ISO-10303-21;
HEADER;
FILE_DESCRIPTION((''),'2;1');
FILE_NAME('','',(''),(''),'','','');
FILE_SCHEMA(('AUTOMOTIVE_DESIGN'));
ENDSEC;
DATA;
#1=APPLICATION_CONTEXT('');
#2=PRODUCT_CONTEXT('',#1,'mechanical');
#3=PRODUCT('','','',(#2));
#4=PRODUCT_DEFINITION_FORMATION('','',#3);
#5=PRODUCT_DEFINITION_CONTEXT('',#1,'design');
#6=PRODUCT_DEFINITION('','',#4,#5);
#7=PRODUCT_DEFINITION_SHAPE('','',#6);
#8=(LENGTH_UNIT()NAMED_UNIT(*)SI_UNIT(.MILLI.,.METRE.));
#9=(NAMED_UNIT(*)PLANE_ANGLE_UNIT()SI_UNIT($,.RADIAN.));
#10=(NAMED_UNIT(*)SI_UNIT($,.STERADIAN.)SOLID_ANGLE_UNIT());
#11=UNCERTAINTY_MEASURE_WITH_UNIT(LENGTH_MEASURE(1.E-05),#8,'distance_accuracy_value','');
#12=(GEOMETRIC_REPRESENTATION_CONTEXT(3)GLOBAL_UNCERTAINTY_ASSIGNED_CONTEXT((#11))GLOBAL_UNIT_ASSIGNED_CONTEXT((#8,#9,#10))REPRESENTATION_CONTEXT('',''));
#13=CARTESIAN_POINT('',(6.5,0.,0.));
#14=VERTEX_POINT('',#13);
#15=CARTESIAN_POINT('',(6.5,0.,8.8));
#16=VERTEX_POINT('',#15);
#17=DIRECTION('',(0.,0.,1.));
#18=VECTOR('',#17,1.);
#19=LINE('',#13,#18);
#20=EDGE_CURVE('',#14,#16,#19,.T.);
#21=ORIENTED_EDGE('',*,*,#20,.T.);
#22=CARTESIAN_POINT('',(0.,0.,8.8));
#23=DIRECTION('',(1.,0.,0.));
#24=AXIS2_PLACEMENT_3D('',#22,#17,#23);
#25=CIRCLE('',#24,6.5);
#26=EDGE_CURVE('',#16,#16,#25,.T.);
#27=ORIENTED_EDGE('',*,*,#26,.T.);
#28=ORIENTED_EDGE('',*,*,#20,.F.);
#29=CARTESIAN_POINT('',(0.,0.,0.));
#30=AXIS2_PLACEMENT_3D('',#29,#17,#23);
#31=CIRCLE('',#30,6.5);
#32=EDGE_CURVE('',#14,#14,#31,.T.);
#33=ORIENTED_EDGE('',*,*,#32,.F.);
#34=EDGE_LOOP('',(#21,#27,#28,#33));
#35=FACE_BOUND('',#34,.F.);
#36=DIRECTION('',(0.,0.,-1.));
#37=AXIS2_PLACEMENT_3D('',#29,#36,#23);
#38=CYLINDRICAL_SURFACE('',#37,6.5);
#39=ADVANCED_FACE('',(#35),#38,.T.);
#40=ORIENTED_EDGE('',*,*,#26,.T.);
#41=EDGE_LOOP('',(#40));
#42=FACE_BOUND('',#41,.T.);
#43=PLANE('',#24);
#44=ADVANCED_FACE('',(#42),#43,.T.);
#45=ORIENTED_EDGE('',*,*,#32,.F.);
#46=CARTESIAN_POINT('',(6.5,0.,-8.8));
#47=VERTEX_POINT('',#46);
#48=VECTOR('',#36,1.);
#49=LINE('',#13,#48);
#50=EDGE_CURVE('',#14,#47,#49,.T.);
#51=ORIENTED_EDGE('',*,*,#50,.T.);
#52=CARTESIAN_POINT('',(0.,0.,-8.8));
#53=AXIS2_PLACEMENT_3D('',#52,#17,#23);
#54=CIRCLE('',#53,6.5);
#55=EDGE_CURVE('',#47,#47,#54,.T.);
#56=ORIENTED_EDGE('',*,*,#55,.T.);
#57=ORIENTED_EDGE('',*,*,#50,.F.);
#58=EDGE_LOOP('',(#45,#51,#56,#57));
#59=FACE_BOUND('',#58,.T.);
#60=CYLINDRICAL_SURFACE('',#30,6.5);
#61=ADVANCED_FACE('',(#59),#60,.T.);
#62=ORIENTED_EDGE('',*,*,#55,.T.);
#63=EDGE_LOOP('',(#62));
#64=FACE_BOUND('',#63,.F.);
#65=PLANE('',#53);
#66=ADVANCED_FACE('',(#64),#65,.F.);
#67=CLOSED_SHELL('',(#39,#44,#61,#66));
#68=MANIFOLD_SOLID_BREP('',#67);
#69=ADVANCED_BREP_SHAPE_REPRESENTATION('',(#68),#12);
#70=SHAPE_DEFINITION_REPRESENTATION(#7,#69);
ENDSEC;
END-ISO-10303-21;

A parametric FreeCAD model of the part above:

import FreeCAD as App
import Part
import Sketcher
from FreeCAD import Vector

doc = App.newDocument("Part")
params = doc.addObject("Spreadsheet::Sheet", "Params")
for row, (alias, value) in enumerate([
    ("sketch1_diameter", "13 mm"),
    ("pad1_length", "17.6 mm"),
], start=1):
    params.set(f"A{row}", alias)
    params.set(f"B{row}", "=" + value)
    params.setAlias(f"B{row}", alias)

body = doc.addObject("PartDesign::Body", "Body")

# Sketch on XY plane
sketch1 = body.newObject("Sketcher::SketchObject", "Sketch")
sketch1.AttachmentSupport = (doc.getObject("XY_Plane"), [""])
sketch1.MapMode = "FlatFace"
sketch1.addGeometry(Part.Circle(Vector(0, 0, 0), Vector(0, 0, 1), 6), False)
sketch1.addConstraint(Sketcher.Constraint("Coincident", 0, 3, -1, 1))
sketch1.addConstraint(Sketcher.Constraint("Diameter", 0, 13.0))
sketch1.setExpression("Constraints[1]", "Params.sketch1_diameter")
pad1 = body.newObject("PartDesign::Pad", "Pad")
pad1.Profile = sketch1
pad1.setExpression("Length", "Params.pad1_length")
pad1.Midplane = True

doc.recompute()
